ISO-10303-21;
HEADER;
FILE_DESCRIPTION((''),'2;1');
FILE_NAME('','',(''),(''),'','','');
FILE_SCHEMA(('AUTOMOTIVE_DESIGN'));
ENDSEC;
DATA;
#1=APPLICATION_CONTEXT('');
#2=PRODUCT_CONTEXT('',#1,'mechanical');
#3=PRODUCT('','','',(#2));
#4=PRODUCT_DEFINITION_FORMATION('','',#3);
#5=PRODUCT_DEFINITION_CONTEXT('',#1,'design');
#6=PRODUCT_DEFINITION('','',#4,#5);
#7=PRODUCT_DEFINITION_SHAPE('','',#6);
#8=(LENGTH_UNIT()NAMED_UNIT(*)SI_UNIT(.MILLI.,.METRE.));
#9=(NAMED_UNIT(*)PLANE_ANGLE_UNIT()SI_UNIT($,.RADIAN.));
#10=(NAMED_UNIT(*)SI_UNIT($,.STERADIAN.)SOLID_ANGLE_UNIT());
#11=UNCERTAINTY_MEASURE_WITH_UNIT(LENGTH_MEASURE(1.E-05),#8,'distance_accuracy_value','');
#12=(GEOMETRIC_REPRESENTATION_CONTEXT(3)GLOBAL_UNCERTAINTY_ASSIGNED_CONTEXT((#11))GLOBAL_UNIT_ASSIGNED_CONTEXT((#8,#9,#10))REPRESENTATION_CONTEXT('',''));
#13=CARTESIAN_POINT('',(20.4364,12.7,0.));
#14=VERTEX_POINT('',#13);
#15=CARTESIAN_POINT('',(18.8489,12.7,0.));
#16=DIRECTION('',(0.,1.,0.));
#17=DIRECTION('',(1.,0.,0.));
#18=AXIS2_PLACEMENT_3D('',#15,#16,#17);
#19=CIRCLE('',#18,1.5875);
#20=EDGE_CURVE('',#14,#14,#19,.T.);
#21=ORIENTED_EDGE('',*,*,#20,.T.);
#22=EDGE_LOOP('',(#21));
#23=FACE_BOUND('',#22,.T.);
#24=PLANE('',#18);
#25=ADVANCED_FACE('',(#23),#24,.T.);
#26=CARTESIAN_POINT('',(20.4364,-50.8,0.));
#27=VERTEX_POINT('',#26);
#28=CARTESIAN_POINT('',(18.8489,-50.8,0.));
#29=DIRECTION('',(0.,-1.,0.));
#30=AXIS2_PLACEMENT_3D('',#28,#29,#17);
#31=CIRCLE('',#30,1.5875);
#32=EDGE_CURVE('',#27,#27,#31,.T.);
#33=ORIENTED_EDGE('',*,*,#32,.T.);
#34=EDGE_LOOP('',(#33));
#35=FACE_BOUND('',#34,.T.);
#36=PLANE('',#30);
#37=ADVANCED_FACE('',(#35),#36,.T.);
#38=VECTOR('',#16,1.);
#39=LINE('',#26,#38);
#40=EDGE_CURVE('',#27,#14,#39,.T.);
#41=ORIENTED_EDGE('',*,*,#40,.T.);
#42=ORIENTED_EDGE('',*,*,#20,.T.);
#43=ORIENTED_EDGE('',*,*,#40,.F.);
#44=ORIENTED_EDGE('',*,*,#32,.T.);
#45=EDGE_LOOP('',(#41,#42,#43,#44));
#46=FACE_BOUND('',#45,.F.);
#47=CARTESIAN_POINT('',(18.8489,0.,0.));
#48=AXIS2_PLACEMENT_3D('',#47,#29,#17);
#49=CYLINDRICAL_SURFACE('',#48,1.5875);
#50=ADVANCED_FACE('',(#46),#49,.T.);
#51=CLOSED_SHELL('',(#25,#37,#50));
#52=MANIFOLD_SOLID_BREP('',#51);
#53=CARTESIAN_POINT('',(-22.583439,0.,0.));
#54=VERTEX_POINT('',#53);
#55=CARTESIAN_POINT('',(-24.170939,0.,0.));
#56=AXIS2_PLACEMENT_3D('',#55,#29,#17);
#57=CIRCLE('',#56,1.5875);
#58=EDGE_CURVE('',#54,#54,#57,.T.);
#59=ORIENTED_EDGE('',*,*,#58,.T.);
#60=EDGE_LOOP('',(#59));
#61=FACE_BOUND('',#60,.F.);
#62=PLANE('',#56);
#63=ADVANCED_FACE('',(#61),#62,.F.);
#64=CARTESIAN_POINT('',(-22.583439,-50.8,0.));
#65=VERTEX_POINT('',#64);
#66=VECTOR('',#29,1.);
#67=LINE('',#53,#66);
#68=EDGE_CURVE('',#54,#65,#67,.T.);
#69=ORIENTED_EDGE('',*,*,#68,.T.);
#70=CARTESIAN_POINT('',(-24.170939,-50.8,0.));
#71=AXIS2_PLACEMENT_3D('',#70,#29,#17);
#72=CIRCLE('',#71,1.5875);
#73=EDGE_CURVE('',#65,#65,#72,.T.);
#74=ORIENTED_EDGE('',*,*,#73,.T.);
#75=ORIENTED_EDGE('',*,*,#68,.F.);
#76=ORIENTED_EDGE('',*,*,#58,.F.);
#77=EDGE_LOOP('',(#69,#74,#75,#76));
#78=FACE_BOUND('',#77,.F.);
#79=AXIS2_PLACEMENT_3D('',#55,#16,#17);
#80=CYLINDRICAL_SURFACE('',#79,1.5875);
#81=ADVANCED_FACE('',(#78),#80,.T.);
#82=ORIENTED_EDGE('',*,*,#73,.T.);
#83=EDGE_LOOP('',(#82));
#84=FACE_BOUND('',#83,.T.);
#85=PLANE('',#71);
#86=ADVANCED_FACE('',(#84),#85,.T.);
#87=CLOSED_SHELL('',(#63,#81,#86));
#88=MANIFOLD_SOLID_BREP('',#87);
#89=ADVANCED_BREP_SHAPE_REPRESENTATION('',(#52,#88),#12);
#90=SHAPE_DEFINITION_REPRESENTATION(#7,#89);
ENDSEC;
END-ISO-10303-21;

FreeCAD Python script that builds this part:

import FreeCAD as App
import Part
import Sketcher
Q = App.Units.Quantity

doc = App.newDocument("Part")
body = doc.addObject("PartDesign::Body", "Body")
body.AllowCompound = True

sketch1 = body.newObject("Sketcher::SketchObject", "Sketch")
sketch1.AttachmentSupport = (doc.getObject("XZ_Plane"), [""])
sketch1.MapMode = "FlatFace"
sketch1.addGeometry(Part.Circle(App.Vector(-24.170939, 0, 0), App.Vector(0, 0, 1), 1.5875), False)
sketch1.addGeometry(Part.Circle(App.Vector(18.8489, 0, 0), App.Vector(0, 0, 1), 1.5875), False)
sketch1.addConstraint(Sketcher.Constraint("Equal", 0, 1))
sketch1.addConstraint(Sketcher.Constraint("PointOnObject", 0, 3, -1))
sketch1.addConstraint(Sketcher.Constraint("PointOnObject", 1, 3, -1))
sketch1.addConstraint(Sketcher.Constraint("Diameter", 0, Q("0.125 in")))
sketch1.addConstraint(Sketcher.Constraint("DistanceX", -1, 1, 1, 3, 18.8489))
sketch1.addConstraint(Sketcher.Constraint("DistanceX", 0, 3, -1, 1, 24.170939))
pad1 = body.newObject("PartDesign::Pad", "Pad")
pad1.Profile = sketch1
pad1.Length = Q("2 in")

sketch2 = body.newObject("Sketcher::SketchObject", "Sketch001")
sketch2.AttachmentSupport = (doc.getObject("XZ_Plane"), [""])
sketch2.MapMode = "FlatFace"
sketch2.addGeometry(Part.Circle(App.Vector(18.8489, 0, 0), App.Vector(0, 0, 1), 1.5875), False)
sketch2.addConstraint(Sketcher.Constraint("PointOnObject", 0, 3, -1))
sketch2.addConstraint(Sketcher.Constraint("Diameter", 0, Q("0.125 in")))
sketch2.addConstraint(Sketcher.Constraint("DistanceX", -1, 1, 0, 3, 18.8489))
pad2 = body.newObject("PartDesign::Pad", "Pad001")
pad2.Profile = sketch2
pad2.Length = Q("0.5 in")
pad2.Reversed = True

doc.recompute()
